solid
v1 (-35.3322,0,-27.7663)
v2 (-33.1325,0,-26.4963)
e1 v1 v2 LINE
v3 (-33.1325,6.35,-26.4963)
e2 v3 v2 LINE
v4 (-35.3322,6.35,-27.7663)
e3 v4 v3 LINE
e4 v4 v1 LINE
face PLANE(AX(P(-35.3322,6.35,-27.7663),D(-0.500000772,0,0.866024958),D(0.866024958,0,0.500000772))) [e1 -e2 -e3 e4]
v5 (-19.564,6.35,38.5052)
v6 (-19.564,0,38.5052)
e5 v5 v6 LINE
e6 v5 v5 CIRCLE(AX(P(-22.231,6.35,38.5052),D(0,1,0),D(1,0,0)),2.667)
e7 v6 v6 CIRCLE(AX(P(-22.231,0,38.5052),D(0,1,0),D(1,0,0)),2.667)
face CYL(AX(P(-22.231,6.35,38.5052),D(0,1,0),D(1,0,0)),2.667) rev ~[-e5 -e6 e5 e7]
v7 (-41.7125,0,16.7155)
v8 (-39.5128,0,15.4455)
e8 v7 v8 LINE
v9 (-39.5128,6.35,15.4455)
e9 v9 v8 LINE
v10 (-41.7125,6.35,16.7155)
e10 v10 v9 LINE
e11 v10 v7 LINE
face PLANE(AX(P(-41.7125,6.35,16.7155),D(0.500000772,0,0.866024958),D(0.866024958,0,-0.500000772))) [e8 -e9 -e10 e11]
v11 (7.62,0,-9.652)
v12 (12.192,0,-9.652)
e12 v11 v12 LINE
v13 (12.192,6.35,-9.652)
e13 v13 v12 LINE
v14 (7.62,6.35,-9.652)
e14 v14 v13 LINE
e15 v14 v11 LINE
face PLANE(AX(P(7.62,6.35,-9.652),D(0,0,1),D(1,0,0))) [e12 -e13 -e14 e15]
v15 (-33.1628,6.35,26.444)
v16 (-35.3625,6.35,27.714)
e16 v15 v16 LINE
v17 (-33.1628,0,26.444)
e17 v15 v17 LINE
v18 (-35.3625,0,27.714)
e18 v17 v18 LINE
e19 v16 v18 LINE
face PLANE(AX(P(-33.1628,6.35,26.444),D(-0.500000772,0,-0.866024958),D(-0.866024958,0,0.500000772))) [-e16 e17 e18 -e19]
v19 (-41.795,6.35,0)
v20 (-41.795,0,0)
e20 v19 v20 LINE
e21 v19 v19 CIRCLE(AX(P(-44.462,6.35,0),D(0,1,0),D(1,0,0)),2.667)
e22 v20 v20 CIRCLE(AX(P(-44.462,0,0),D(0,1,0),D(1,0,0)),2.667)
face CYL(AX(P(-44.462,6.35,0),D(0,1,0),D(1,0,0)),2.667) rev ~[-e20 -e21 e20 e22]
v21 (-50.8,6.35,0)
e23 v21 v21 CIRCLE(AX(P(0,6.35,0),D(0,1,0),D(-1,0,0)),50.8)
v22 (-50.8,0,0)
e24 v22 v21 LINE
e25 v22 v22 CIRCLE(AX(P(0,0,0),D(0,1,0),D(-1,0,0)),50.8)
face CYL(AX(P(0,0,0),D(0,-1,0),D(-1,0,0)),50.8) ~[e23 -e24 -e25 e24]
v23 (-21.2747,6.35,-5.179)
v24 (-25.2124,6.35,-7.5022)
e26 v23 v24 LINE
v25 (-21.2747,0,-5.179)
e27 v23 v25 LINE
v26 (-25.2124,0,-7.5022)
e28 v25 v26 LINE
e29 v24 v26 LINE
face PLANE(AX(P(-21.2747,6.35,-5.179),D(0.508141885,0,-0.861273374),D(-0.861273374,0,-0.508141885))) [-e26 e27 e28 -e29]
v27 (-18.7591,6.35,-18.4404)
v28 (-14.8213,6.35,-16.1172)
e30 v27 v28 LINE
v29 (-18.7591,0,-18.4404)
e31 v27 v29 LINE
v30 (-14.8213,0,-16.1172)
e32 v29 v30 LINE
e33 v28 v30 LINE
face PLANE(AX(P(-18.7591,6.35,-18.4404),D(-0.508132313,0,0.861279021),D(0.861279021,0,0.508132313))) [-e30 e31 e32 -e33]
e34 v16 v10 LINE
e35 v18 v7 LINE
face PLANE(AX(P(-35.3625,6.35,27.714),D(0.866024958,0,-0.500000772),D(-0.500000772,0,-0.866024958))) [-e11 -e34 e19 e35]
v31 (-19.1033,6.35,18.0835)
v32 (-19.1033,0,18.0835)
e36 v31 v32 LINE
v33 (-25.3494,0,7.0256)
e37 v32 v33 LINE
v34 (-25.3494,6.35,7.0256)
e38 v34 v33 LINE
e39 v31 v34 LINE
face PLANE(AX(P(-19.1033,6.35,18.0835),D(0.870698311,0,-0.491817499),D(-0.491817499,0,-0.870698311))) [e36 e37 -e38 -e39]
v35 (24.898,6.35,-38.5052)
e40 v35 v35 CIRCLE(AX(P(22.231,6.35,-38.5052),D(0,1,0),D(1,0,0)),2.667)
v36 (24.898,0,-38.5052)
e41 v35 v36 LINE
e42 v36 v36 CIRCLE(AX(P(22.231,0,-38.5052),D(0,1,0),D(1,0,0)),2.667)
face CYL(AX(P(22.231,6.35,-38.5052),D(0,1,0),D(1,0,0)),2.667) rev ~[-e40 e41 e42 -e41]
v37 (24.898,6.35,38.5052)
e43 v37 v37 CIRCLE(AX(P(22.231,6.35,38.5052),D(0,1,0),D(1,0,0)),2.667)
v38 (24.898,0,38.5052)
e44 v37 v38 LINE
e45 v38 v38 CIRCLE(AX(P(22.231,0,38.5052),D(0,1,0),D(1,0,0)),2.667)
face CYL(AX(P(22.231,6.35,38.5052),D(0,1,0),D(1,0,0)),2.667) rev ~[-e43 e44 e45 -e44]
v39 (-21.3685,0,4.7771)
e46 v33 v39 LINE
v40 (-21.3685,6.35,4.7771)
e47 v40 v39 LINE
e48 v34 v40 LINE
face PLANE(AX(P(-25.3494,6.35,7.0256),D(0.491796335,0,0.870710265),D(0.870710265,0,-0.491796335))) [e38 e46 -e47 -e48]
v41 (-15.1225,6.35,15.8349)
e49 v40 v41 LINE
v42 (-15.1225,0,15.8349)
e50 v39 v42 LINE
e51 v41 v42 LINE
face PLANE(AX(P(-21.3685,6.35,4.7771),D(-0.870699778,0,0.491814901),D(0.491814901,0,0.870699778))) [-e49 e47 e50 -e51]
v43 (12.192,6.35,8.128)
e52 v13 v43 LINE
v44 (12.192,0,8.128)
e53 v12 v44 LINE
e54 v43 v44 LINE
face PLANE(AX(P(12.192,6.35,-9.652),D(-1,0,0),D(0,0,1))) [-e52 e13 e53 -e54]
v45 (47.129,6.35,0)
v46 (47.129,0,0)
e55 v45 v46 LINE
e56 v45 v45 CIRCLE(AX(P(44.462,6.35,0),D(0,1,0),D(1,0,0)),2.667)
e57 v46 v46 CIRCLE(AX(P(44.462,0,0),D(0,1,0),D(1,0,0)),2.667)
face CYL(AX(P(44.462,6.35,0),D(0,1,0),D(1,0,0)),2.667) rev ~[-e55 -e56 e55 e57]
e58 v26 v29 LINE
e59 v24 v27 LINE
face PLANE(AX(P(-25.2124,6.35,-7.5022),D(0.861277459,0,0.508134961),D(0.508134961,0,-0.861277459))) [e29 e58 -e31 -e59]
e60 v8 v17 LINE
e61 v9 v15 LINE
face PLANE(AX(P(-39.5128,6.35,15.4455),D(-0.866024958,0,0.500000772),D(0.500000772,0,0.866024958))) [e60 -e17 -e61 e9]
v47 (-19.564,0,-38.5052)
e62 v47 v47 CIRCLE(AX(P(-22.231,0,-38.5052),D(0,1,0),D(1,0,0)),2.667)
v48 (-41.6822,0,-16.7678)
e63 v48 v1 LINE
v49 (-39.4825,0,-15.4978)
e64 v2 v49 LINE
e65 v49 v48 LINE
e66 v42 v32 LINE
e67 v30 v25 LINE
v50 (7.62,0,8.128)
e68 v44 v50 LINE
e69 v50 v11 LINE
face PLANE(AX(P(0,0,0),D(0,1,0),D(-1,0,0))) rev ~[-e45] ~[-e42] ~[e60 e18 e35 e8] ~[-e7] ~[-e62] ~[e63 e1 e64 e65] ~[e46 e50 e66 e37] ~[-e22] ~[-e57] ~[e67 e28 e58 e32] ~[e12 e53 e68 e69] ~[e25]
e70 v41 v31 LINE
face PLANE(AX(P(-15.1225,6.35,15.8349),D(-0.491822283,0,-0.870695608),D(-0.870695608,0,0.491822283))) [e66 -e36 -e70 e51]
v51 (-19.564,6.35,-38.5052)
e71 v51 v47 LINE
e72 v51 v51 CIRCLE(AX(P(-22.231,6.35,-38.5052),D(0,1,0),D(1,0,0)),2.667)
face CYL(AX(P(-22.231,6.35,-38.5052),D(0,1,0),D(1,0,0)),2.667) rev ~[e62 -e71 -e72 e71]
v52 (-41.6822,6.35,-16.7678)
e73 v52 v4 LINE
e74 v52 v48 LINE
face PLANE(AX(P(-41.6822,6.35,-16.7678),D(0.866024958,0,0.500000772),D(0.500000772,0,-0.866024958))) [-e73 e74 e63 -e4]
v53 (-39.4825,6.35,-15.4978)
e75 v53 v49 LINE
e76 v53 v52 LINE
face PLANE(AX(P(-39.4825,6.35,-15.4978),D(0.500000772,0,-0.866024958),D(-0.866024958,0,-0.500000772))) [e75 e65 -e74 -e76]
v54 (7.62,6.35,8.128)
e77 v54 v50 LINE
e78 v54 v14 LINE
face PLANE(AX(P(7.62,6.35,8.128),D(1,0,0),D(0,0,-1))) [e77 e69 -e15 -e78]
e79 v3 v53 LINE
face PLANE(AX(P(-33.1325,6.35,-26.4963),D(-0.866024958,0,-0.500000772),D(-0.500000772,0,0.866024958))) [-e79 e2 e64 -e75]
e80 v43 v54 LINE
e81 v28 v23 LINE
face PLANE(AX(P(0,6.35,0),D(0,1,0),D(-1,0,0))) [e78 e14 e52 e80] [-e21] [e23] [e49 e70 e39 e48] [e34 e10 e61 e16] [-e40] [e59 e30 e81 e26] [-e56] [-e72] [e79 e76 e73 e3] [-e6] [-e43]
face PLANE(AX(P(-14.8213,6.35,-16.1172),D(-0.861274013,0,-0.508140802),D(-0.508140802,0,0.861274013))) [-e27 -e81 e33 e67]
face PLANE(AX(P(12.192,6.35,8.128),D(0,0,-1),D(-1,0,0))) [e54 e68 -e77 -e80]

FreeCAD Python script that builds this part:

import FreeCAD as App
import Part
import Sketcher
from FreeCAD import Vector
Q = App.Units.Quantity

doc = App.newDocument("Part")
params = doc.addObject("Spreadsheet::Sheet", "Params")
for row, (alias, value) in enumerate([
    ("sketch1_diameter", "4 in"),
    ("pad1_length", "0.25 in"),
    ("sketch2_diameter", "0.21 in"),
    ("pocket1_length", "0.25 in"),
    ("sketch3_height", "0.7 in"),
    ("sketch3_length", "0.5 in"),
    ("sketch3_length2", "0.1 in"),
    ("sketch3_width", "0.18 in"),
    ("sketch3_length3", "0.18 in"),
    ("pocket2_length", "0.25 in"),
], start=1):
    params.set(f"A{row}", alias)
    params.set(f"B{row}", "=" + value)
    params.setAlias(f"B{row}", alias)

body = doc.addObject("PartDesign::Body", "Body")

# Sketch on XZ plane
sketch1 = body.newObject("Sketcher::SketchObject", "Sketch")
sketch1.AttachmentSupport = (doc.getObject("XZ_Plane"), [""])
sketch1.MapMode = "FlatFace"
sketch1.addGeometry(Part.Circle(Vector(0, 0, 0), Vector(0, 0, 1), 51), False)
sketch1.addConstraint([
    Sketcher.Constraint("Coincident", 0, 3, -1, 1),
    Sketcher.Constraint("Diameter", 0, Q("4 in")),
])
sketch1.setExpression("Constraints[1]", "Params.sketch1_diameter")
pad1 = body.newObject("PartDesign::Pad", "Pad")
pad1.Profile = sketch1
pad1.setExpression("Length", "Params.pad1_length")
pad1.Reversed = True

# Sketch on XZ plane
sketch2 = body.newObject("Sketcher::SketchObject", "Sketch001")
sketch2.AttachmentSupport = (doc.getObject("XZ_Plane"), [""])
sketch2.MapMode = "FlatFace"
sketch2.AttachmentOffset = App.Placement(Vector(0, 0, -0.25 * 25.4), App.Rotation())
sketch2.addGeometry([
    Part.Circle(Vector(-44.5, 0, 0), Vector(0, 0, 1), 2.7),  # 0
    Part.Circle(Vector(-22.2, 38.5, 0), Vector(0, 0, 1), 2.7),  # 1
    Part.Circle(Vector(22.2, 38.5, 0), Vector(0, 0, 1), 2.7),  # 2
    Part.Circle(Vector(44.5, 0, 0), Vector(0, 0, 1), 2.7),  # 3
    Part.Circle(Vector(22.2, -38.5, 0), Vector(0, 0, 1), 2.7),  # 4
    Part.Circle(Vector(-22.2, -38.5, 0), Vector(0, 0, 1), 2.7),  # 5
], False)
sketch2.addConstraint([
    Sketcher.Constraint("Equal", 0, 1),
    Sketcher.Constraint("Equal", 1, 2),
    Sketcher.Constraint("Equal", 2, 3),
    Sketcher.Constraint("Equal", 3, 4),
    Sketcher.Constraint("Equal", 4, 5),
    Sketcher.Constraint("Symmetric", 0, 3, 3, 3, -1, 1),
    Sketcher.Constraint("Symmetric", 1, 3, 4, 3, -1, 1),
    Sketcher.Constraint("Symmetric", 2, 3, 5, 3, -1, 1),
    Sketcher.Constraint("Symmetric", 1, 3, 2, 3, -2),
    Sketcher.Constraint("PointOnObject", 0, 3, -1),
    Sketcher.Constraint("Diameter", 0, Q("0.21 in")),
    Sketcher.Constraint("DistanceX", 0, 3, 2, 3, Q("2.6257 in")),
    Sketcher.Constraint("DistanceY", 4, 3, 2, 3, Q("3.0319 in")),
    Sketcher.Constraint("DistanceX", 0, 3, -1, 1, 44.462),
])
sketch2.setExpression("Constraints[10]", "Params.sketch2_diameter")
pocket1 = body.newObject("PartDesign::Pocket", "Pocket")
pocket1.Profile = sketch2
pocket1.setExpression("Length", "Params.pocket1_length")
pocket1.Reversed = True

# Sketch on XZ plane
sketch3 = body.newObject("Sketcher::SketchObject", "Sketch002")
sketch3.AttachmentSupport = (doc.getObject("XZ_Plane"), [""])
sketch3.MapMode = "FlatFace"
sketch3.AttachmentOffset = App.Placement(Vector(0, 0, -0.25 * 25.4), App.Rotation())
sketch3.addGeometry([
    Part.LineSegment(Vector(-21.4, 4.8, 0), Vector(-25.3, 7, 0)),  # 0
    Part.LineSegment(Vector(-25.3, 7, 0), Vector(-19.1, 18.1, 0)),  # 1
    Part.LineSegment(Vector(-19.1, 18.1, 0), Vector(-15.1, 15.8, 0)),  # 2
    Part.LineSegment(Vector(-15.1, 15.8, 0), Vector(-21.4, 4.8, 0)),  # 3
    Part.LineSegment(Vector(-14.8, -16.1, 0), Vector(-18.8, -18.4, 0)),  # 4
    Part.LineSegment(Vector(-18.8, -18.4, 0), Vector(-25.2, -7.5, 0)),  # 5
    Part.LineSegment(Vector(-25.2, -7.5, 0), Vector(-21.3, -5.2, 0)),  # 6
    Part.LineSegment(Vector(-21.3, -5.2, 0), Vector(-14.8, -16.1, 0)),  # 7
    Part.LineSegment(Vector(12.2, -9.7, 0), Vector(7.6, -9.7, 0)),  # 8
    Part.LineSegment(Vector(7.6, -9.7, 0), Vector(7.6, 8.1, 0)),  # 9
    Part.LineSegment(Vector(7.6, 8.1, 0), Vector(12.2, 8.1, 0)),  # 10
    Part.LineSegment(Vector(12.2, 8.1, 0), Vector(12.2, -9.7, 0)),  # 11
    Part.LineSegment(Vector(-39.5, 15.4, 0), Vector(-41.7, 16.7, 0)),  # 12
    Part.LineSegment(Vector(-41.7, 16.7, 0), Vector(-35.4, 27.7, 0)),  # 13
    Part.LineSegment(Vector(-35.4, 27.7, 0), Vector(-33.2, 26.4, 0)),  # 14
    Part.LineSegment(Vector(-33.2, 26.4, 0), Vector(-39.5, 15.4, 0)),  # 15
    Part.LineSegment(Vector(-33.1, -26.5, 0), Vector(-35.3, -27.8, 0)),  # 16
    Part.LineSegment(Vector(-35.3, -27.8, 0), Vector(-41.7, -16.8, 0)),  # 17
    Part.LineSegment(Vector(-41.7, -16.8, 0), Vector(-39.5, -15.5, 0)),  # 18
    Part.LineSegment(Vector(-39.5, -15.5, 0), Vector(-33.1, -26.5, 0)),  # 19
], False)
sketch3.addConstraint([
    Sketcher.Constraint("Coincident", 0, 2, 1, 1),
    Sketcher.Constraint("Coincident", 1, 2, 2, 1),
    Sketcher.Constraint("Coincident", 2, 2, 3, 1),
    Sketcher.Constraint("Coincident", 3, 2, 0, 1),
    Sketcher.Constraint("Coincident", 4, 2, 5, 1),
    Sketcher.Constraint("Coincident", 5, 2, 6, 1),
    Sketcher.Constraint("Coincident", 6, 2, 7, 1),
    Sketcher.Constraint("Coincident", 7, 2, 4, 1),
    Sketcher.Constraint("Coincident", 8, 2, 9, 1),
    Sketcher.Constraint("Coincident", 9, 2, 10, 1),
    Sketcher.Constraint("Coincident", 10, 2, 11, 1),
    Sketcher.Constraint("Coincident", 11, 2, 8, 1),
    Sketcher.Constraint("Coincident", 12, 2, 13, 1),
    Sketcher.Constraint("Coincident", 13, 2, 14, 1),
    Sketcher.Constraint("Coincident", 14, 2, 15, 1),
    Sketcher.Constraint("Coincident", 15, 2, 12, 1),
    Sketcher.Constraint("Coincident", 16, 2, 17, 1),
    Sketcher.Constraint("Coincident", 17, 2, 18, 1),
    Sketcher.Constraint("Coincident", 18, 2, 19, 1),
    Sketcher.Constraint("Coincident", 19, 2, 16, 1),
    Sketcher.Constraint("Horizontal", 8),
    Sketcher.Constraint("Vertical", 9),
    Sketcher.Constraint("Horizontal", 10),
    Sketcher.Constraint("Vertical", 11),
    Sketcher.Constraint("Perpendicular", 0, 1),
    Sketcher.Constraint("Perpendicular", 1, 2),
    Sketcher.Constraint("Perpendicular", 2, 3),
    Sketcher.Constraint("Perpendicular", 4, 5),
    Sketcher.Constraint("Perpendicular", 5, 6),
    Sketcher.Constraint("Perpendicular", 6, 7),
    Sketcher.Constraint("Perpendicular", 12, 13),
    Sketcher.Constraint("Perpendicular", 13, 14),
    Sketcher.Constraint("Perpendicular", 14, 15),
    Sketcher.Constraint("Perpendicular", 16, 17),
    Sketcher.Constraint("Perpendicular", 17, 18),
    Sketcher.Constraint("Perpendicular", 18, 19),
    Sketcher.Constraint("Equal", 2, 4),
    Sketcher.Constraint("Equal", 3, 5),
    Sketcher.Constraint("Equal", 7, 13),
    Sketcher.Constraint("Equal", 14, 16),
    Sketcher.Constraint("Equal", 15, 17),
    Sketcher.Constraint("DistanceY", 9, 1, 9, 2, Q("0.7 in")),
    Sketcher.Constraint("Distance", 1, Q("0.5 in")),
    Sketcher.Constraint("Distance", 12, Q("0.1 in")),
    Sketcher.Constraint("DistanceX", 8, 2, 8, 1, Q("0.18 in")),
    Sketcher.Constraint("Distance", 0, Q("0.18 in")),
    Sketcher.Constraint("Angle", 12, Q("150 deg")),
    Sketcher.Constraint("Angle", 16, Q("-150 deg")),
    Sketcher.Constraint("DistanceX", -1, 1, 8, 2, Q("0.3 in")),
    Sketcher.Constraint("DistanceY", 8, 2, -1, 1, Q("0.38 in")),
    Sketcher.Constraint("Angle", 1, Q("60.54 deg")),
    Sketcher.Constraint("Angle", 4, Q("-149.4605 deg")),
    Sketcher.Constraint("DistanceX", 0, 2, -1, 1, Q("0.998 in")),
    Sketcher.Constraint("DistanceY", 4, 2, -1, 1, Q("0.726 in")),
    Sketcher.Constraint("DistanceY", 18, 2, 6, 2, Q("0.406252 in")),
    Sketcher.Constraint("DistanceY", -1, 1, 0, 2, Q("0.2766 in")),
    Sketcher.Constraint("DistanceY", -1, 1, 12, 2, Q("0.6581 in")),
    Sketcher.Constraint("DistanceX", 0, 2, 5, 2, Q("0.0054 in")),
    Sketcher.Constraint("DistanceX", 12, 2, 5, 2, Q("0.6496 in")),
    Sketcher.Constraint("DistanceX", 16, 2, -1, 1, 35.3322),
])
sketch3.setExpression("Constraints[41]", "Params.sketch3_height")
sketch3.setExpression("Constraints[42]", "Params.sketch3_length")
sketch3.setExpression("Constraints[43]", "Params.sketch3_length2")
sketch3.setExpression("Constraints[44]", "Params.sketch3_width")
sketch3.setExpression("Constraints[45]", "Params.sketch3_length3")
pocket2 = body.newObject("PartDesign::Pocket", "Pocket001")
pocket2.Profile = sketch3
pocket2.setExpression("Length", "Params.pocket2_length")
pocket2.Reversed = True

doc.recompute()
